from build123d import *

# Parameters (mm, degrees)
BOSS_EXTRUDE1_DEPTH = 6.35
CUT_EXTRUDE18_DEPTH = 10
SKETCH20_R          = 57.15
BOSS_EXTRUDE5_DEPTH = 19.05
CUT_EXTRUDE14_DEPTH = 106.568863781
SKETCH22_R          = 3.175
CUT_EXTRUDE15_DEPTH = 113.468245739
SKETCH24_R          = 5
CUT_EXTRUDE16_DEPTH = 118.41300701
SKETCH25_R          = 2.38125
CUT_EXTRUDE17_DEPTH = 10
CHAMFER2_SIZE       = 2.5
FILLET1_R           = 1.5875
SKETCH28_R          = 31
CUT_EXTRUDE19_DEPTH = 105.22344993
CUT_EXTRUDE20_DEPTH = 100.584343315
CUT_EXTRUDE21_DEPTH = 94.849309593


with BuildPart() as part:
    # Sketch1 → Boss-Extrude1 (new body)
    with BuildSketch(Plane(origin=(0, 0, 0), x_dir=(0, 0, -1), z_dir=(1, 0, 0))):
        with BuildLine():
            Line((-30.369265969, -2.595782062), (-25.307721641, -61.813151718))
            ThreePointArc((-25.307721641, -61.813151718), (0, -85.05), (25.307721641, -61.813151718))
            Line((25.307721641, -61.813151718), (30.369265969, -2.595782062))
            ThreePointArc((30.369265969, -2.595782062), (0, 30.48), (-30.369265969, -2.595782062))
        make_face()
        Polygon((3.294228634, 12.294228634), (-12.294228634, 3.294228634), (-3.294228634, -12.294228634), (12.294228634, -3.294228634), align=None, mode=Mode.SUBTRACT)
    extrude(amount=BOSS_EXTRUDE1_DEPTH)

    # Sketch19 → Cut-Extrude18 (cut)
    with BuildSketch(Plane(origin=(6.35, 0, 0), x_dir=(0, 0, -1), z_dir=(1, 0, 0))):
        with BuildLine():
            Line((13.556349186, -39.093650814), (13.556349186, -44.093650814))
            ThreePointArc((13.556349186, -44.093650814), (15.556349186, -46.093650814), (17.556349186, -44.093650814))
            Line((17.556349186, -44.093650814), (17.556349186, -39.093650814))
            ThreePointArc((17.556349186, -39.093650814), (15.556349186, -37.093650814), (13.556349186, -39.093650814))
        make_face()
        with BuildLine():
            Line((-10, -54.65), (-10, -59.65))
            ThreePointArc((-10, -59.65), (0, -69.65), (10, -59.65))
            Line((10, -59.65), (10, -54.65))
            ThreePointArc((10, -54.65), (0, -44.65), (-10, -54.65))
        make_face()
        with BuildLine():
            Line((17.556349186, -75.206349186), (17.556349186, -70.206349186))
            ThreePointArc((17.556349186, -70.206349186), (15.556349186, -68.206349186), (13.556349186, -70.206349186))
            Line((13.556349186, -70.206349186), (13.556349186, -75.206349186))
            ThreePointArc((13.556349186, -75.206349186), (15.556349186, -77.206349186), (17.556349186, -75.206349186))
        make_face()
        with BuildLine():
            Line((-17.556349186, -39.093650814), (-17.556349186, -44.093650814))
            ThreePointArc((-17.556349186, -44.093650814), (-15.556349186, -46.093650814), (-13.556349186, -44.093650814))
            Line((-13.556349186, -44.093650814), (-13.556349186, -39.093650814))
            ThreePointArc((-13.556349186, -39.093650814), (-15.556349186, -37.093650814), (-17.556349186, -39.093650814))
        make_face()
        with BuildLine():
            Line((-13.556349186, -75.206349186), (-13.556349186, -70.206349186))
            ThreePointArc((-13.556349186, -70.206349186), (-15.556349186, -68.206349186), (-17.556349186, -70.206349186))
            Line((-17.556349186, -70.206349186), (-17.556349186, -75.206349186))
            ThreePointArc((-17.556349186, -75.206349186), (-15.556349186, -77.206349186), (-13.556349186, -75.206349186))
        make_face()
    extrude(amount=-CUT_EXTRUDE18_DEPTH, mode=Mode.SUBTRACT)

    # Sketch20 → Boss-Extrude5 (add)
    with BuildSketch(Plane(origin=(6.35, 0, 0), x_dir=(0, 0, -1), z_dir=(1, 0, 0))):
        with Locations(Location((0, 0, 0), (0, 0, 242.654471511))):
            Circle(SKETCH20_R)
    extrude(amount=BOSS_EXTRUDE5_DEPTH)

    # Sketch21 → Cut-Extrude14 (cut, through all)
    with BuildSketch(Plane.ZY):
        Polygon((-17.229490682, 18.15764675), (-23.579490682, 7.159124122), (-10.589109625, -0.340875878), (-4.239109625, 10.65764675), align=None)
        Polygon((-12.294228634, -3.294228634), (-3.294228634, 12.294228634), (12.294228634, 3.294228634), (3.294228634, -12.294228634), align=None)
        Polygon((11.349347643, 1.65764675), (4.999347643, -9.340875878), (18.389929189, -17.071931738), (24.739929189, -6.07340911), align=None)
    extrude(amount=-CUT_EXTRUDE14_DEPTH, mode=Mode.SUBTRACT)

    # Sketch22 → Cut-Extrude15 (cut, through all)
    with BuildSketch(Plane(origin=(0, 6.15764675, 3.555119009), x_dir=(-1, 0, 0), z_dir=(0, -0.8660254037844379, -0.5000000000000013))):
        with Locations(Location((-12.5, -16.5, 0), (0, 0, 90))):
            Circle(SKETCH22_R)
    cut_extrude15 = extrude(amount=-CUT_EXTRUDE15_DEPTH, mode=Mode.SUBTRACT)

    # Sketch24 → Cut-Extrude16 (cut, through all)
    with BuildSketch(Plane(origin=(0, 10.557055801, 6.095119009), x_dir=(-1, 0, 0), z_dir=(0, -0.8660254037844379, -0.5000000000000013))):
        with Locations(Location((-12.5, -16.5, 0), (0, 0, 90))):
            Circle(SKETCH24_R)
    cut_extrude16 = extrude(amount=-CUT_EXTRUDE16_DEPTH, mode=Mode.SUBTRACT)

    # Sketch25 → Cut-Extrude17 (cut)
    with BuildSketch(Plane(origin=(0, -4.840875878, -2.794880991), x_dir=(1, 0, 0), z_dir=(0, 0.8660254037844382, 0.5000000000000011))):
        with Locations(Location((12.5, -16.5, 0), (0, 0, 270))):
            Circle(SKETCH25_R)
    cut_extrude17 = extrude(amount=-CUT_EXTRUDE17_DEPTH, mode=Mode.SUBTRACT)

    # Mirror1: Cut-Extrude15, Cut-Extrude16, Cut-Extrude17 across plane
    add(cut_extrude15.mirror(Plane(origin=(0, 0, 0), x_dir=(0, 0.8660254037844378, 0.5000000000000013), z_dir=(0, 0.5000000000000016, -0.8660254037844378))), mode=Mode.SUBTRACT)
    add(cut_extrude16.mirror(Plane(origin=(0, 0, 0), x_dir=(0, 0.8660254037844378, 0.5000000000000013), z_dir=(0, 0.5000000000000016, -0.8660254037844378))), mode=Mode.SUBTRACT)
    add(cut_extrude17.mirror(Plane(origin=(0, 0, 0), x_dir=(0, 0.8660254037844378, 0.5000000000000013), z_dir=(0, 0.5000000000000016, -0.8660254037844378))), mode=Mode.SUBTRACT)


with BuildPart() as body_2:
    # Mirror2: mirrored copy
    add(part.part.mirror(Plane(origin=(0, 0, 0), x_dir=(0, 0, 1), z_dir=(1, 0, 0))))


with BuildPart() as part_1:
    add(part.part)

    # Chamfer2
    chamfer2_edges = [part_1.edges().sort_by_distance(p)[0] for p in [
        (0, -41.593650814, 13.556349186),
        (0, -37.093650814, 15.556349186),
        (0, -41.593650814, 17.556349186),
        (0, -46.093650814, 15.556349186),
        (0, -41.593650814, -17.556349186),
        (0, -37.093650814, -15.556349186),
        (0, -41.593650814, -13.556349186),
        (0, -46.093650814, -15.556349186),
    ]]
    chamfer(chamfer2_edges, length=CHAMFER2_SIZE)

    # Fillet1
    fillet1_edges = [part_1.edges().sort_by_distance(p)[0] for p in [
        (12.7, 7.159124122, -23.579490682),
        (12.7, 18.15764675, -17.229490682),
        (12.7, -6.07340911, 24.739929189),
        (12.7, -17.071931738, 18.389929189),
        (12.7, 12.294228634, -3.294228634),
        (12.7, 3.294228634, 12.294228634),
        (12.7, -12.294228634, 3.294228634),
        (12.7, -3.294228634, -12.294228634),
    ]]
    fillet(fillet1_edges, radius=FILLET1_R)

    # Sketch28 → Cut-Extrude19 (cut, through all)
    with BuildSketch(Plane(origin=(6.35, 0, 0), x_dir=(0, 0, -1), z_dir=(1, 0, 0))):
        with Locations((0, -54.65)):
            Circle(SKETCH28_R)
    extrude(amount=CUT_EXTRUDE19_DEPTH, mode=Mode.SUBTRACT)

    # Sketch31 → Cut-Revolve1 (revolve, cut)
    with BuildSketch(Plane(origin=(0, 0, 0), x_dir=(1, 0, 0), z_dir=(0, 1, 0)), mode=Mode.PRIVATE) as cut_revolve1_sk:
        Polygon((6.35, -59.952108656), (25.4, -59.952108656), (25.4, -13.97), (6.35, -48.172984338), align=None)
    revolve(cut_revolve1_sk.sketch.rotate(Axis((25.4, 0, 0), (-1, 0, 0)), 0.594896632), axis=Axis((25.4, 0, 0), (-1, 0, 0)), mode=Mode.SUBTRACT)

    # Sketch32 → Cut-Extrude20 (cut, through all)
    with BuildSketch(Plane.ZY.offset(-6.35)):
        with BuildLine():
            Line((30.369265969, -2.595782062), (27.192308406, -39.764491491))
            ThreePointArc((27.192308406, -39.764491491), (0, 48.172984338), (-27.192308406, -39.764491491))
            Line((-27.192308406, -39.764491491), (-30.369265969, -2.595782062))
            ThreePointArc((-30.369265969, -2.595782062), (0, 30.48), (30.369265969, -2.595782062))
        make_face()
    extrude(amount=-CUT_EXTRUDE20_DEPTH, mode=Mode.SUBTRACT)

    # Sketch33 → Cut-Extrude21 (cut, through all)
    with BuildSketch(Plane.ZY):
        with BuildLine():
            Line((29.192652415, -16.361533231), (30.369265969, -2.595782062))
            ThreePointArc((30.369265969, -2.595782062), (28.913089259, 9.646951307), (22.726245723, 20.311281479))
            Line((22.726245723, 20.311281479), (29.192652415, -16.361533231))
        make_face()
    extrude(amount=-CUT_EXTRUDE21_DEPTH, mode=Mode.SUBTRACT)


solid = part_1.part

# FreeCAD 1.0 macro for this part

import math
import FreeCAD as App
import Part
import Sketcher
Q = App.Units.Quantity


def edges_at(feature, points):
    """Names of the edges that pass closest to the given points."""
    edges = feature.Shape.Edges
    near = lambda p: min(range(len(edges)), key=lambda i: edges[i].distToShape(Part.Vertex(*p))[0])
    return sorted({f"Edge{near(p) + 1}" for p in points})

doc = App.newDocument("Part")
body = doc.addObject("PartDesign::Body", "Body")

# Sketch on YZ plane
sketch1 = doc.addObject("Sketcher::SketchObject", "Sketch")
body.addObject(sketch1)
sketch1.AttachmentSupport = (doc.YZ_Plane, [""])
sketch1.MapMode = "FlatFace"
sketch1.addGeometry([
    Part.LineSegment(App.Vector(-3, 30, 0), App.Vector(-62, 25, 0)),  # 0
    Part.ArcOfCircle(Part.Circle(App.Vector(-60, 0, 0), App.Vector(0, 0, 1), 25), math.radians(95), math.radians(265)),  # 1
    Part.LineSegment(App.Vector(-62, -25, 0), App.Vector(-3, -30, 0)),  # 2
    Part.ArcOfCircle(Part.Circle(App.Vector(0, 0, 0), App.Vector(0, 0, 1), 30), math.radians(-95), math.radians(95)),  # 3
    Part.LineSegment(App.Vector(3, 12, 0), App.Vector(12, -3, 0)),  # 4
    Part.LineSegment(App.Vector(12, -3, 0), App.Vector(-3, -12, 0)),  # 5
    Part.LineSegment(App.Vector(-3, -12, 0), App.Vector(-12, 3, 0)),  # 6
    Part.LineSegment(App.Vector(-12, 3, 0), App.Vector(3, 12, 0)),  # 7
], False)
sketch1.addConstraint([
    Sketcher.Constraint("Tangent", 0, 2, 1, 1),
    Sketcher.Constraint("Tangent", 1, 2, 2, 1),
    Sketcher.Constraint("Tangent", 2, 2, 3, 1),
    Sketcher.Constraint("Tangent", 3, 2, 0, 1),
    Sketcher.Constraint("Coincident", 4, 2, 5, 1),
    Sketcher.Constraint("Coincident", 5, 2, 6, 1),
    Sketcher.Constraint("Coincident", 6, 2, 7, 1),
    Sketcher.Constraint("Coincident", 7, 2, 4, 1),
    Sketcher.Constraint("Coincident", 3, 3, -1, 1),
    Sketcher.Constraint("Symmetric", 4, 2, 6, 2, -1, 1),
    Sketcher.Constraint("Symmetric", 5, 2, 7, 2, -1, 1),
    Sketcher.Constraint("PointOnObject", 1, 3, -1),
    Sketcher.Constraint("Perpendicular", 4, 5),
    Sketcher.Constraint("Equal", 4, 5),
    Sketcher.Constraint("Radius", 1, 25.4),
    Sketcher.Constraint("Angle", 4, Q("-60 deg")),
    Sketcher.Constraint("Radius", 3, 30.48),
    Sketcher.Constraint("Distance", 4, 18.0),
    Sketcher.Constraint("DistanceX", 1, 3, -1, 1, 59.65),
])
pad1 = doc.addObject("PartDesign::Pad", "Pad")
body.addObject(pad1)
pad1.Profile = sketch1
pad1.Length = 6.35

# Sketch on YZ plane
sketch2 = doc.addObject("Sketcher::SketchObject", "Sketch001")
body.addObject(sketch2)
sketch2.AttachmentSupport = (doc.YZ_Plane, [""])
sketch2.MapMode = "FlatFace"
sketch2.AttachmentOffset = App.Placement(App.Vector(0, 0, 6.35), App.Rotation())
sketch2.addGeometry([
    Part.LineSegment(App.Vector(-39.1, -13.6, 0), App.Vector(-44.1, -13.6, 0)),  # 0
    Part.ArcOfCircle(Part.Circle(App.Vector(-44.1, -15.6, 0), App.Vector(0, 0, 1), 2), math.radians(90), math.radians(270)),  # 1
    Part.LineSegment(App.Vector(-44.1, -17.6, 0), App.Vector(-39.1, -17.6, 0)),  # 2
    Part.ArcOfCircle(Part.Circle(App.Vector(-39.1, -15.6, 0), App.Vector(0, 0, 1), 2), math.radians(-90), math.radians(90)),  # 3
    Part.LineSegment(App.Vector(-54.6, 10, 0), App.Vector(-59.6, 10, 0)),  # 4
    Part.ArcOfCircle(Part.Circle(App.Vector(-59.6, 0, 0), App.Vector(0, 0, 1), 10), math.radians(90), math.radians(270)),  # 5
    Part.LineSegment(App.Vector(-59.6, -10, 0), App.Vector(-54.6, -10, 0)),  # 6
    Part.ArcOfCircle(Part.Circle(App.Vector(-54.6, 0, 0), App.Vector(0, 0, 1), 10), math.radians(-90), math.radians(90)),  # 7
    Part.LineSegment(App.Vector(-75.2, -17.6, 0), App.Vector(-70.2, -17.6, 0)),  # 8
    Part.ArcOfCircle(Part.Circle(App.Vector(-70.2, -15.6, 0), App.Vector(0, 0, 1), 2), math.radians(-90), math.radians(90)),  # 9
    Part.LineSegment(App.Vector(-70.2, -13.6, 0), App.Vector(-75.2, -13.6, 0)),  # 10
    Part.ArcOfCircle(Part.Circle(App.Vector(-75.2, -15.6, 0), App.Vector(0, 0, 1), 2), math.radians(90), math.radians(270)),  # 11
    Part.LineSegment(App.Vector(-39.1, 17.6, 0), App.Vector(-44.1, 17.6, 0)),  # 12
    Part.ArcOfCircle(Part.Circle(App.Vector(-44.1, 15.6, 0), App.Vector(0, 0, 1), 2), math.radians(90), math.radians(270)),  # 13
    Part.LineSegment(App.Vector(-44.1, 13.6, 0), App.Vector(-39.1, 13.6, 0)),  # 14
    Part.ArcOfCircle(Part.Circle(App.Vector(-39.1, 15.6, 0), App.Vector(0, 0, 1), 2), math.radians(-90), math.radians(90)),  # 15
    Part.LineSegment(App.Vector(-75.2, 13.6, 0), App.Vector(-70.2, 13.6, 0)),  # 16
    Part.ArcOfCircle(Part.Circle(App.Vector(-70.2, 15.6, 0), App.Vector(0, 0, 1), 2), math.radians(-90), math.radians(90)),  # 17
    Part.LineSegment(App.Vector(-70.2, 17.6, 0), App.Vector(-75.2, 17.6, 0)),  # 18
    Part.ArcOfCircle(Part.Circle(App.Vector(-75.2, 15.6, 0), App.Vector(0, 0, 1), 2), math.radians(90), math.radians(270)),  # 19
], False)
sketch2.addConstraint([
    Sketcher.Constraint("Tangent", 0, 2, 1, 1),
    Sketcher.Constraint("Tangent", 1, 2, 2, 1),
    Sketcher.Constraint("Tangent", 2, 2, 3, 1),
    Sketcher.Constraint("Tangent", 3, 2, 0, 1),
    Sketcher.Constraint("Tangent", 4, 2, 5, 1),
    Sketcher.Constraint("Tangent", 5, 2, 6, 1),
    Sketcher.Constraint("Tangent", 6, 2, 7, 1),
    Sketcher.Constraint("Tangent", 7, 2, 4, 1),
    Sketcher.Constraint("Tangent", 8, 2, 9, 1),
    Sketcher.Constraint("Tangent", 9, 2, 10, 1),
    Sketcher.Constraint("Tangent", 10, 2, 11, 1),
    Sketcher.Constraint("Tangent", 11, 2, 8, 1),
    Sketcher.Constraint("Tangent", 12, 2, 13, 1),
    Sketcher.Constraint("Tangent", 13, 2, 14, 1),
    Sketcher.Constraint("Tangent", 14, 2, 15, 1),
    Sketcher.Constraint("Tangent", 15, 2, 12, 1),
    Sketcher.Constraint("Tangent", 16, 2, 17, 1),
    Sketcher.Constraint("Tangent", 17, 2, 18, 1),
    Sketcher.Constraint("Tangent", 18, 2, 19, 1),
    Sketcher.Constraint("Tangent", 19, 2, 16, 1),
    Sketcher.Constraint("Horizontal", 0),
    Sketcher.Constraint("Horizontal", 2),
    Sketcher.Constraint("Horizontal", 4),
    Sketcher.Constraint("Horizontal", 6),
    Sketcher.Constraint("Horizontal", 8),
    Sketcher.Constraint("Horizontal", 10),
    Sketcher.Constraint("Horizontal", 12),
    Sketcher.Constraint("Horizontal", 14),
    Sketcher.Constraint("Horizontal", 16),
    Sketcher.Constraint("Horizontal", 18),
    Sketcher.Constraint("Equal", 3, 9),
    Sketcher.Constraint("Equal", 11, 13),
    Sketcher.Constraint("Equal", 15, 17),
    Sketcher.Constraint("Symmetric", 1, 3, 13, 3, -1),
    Sketcher.Constraint("Symmetric", 9, 3, 17, 3, -1),
    Sketcher.Constraint("PointOnObject", 5, 3, -1),
    Sketcher.Constraint("Horizontal", 3, 3, 9, 3),
    Sketcher.Constraint("Vertical", 3, 3, 15, 3),
    Sketcher.Constraint("Vertical", 11, 3, 19, 3),
    Sketcher.Constraint("Equal", 2, 4),
    Sketcher.Constraint("Equal", 6, 8),
    Sketcher.Constraint("Radius", 1, 2.0),
    Sketcher.Constraint("Radius", 5, 10.0),
    Sketcher.Constraint("DistanceX", 0, 2, 0, 1, 5.0),
    Sketcher.Constraint("DistanceX", 5, 3, -1, 1, 59.65),
    Sketcher.Constraint("DistanceX", 9, 3, 1, 3, 26.112698),
    Sketcher.Constraint("DistanceY", 1, 3, 13, 3, 31.112698),
    Sketcher.Constraint("DistanceX", 1, 3, -1, 1, 44.093651),
])
pocket1 = doc.addObject("PartDesign::Pocket", "Pocket")
body.addObject(pocket1)
pocket1.Profile = sketch2
pocket1.Length = 10

# Sketch on YZ plane
sketch3 = doc.addObject("Sketcher::SketchObject", "Sketch002")
body.addObject(sketch3)
sketch3.AttachmentSupport = (doc.YZ_Plane, [""])
sketch3.MapMode = "FlatFace"
sketch3.AttachmentOffset = App.Placement(App.Vector(0, 0, 6.35), App.Rotation())
sketch3.addGeometry(Part.Circle(App.Vector(0, 0, 0), App.Vector(0, 0, 1), 57), False)
sketch3.addConstraint([
    Sketcher.Constraint("Coincident", 0, 3, -1, 1),
    Sketcher.Constraint("Diameter", 0, 114.3),
])
pad2 = doc.addObject("PartDesign::Pad", "Pad001")
body.addObject(pad2)
pad2.Profile = sketch3
pad2.Length = 19.05

# Sketch on YZ plane
sketch4 = doc.addObject("Sketcher::SketchObject", "Sketch003")
body.addObject(sketch4)
sketch4.AttachmentSupport = (doc.YZ_Plane, [""])
sketch4.MapMode = "FlatFace"
sketch4.addGeometry([
    Part.LineSegment(App.Vector(18.2, -17.2, 0), App.Vector(7.2, -23.6, 0)),  # 0
    Part.LineSegment(App.Vector(7.2, -23.6, 0), App.Vector(-0.3, -10.6, 0)),  # 1
    Part.LineSegment(App.Vector(-0.3, -10.6, 0), App.Vector(-3.3, -12.3, 0)),  # 2
    Part.LineSegment(App.Vector(-3.3, -12.3, 0), App.Vector(-12.3, 3.3, 0)),  # 3
    Part.LineSegment(App.Vector(-12.3, 3.3, 0), App.Vector(-9.3, 5, 0)),  # 4
    Part.LineSegment(App.Vector(-9.3, 5, 0), App.Vector(-17.1, 18.4, 0)),  # 5
    Part.LineSegment(App.Vector(-17.1, 18.4, 0), App.Vector(-6.1, 24.7, 0)),  # 6
    Part.LineSegment(App.Vector(-6.1, 24.7, 0), App.Vector(1.7, 11.3, 0)),  # 7
    Part.LineSegment(App.Vector(1.7, 11.3, 0), App.Vector(3.3, 12.3, 0)),  # 8
    Part.LineSegment(App.Vector(3.3, 12.3, 0), App.Vector(12.3, -3.3, 0)),  # 9
    Part.LineSegment(App.Vector(12.3, -3.3, 0), App.Vector(10.7, -4.2, 0)),  # 10
    Part.LineSegment(App.Vector(10.7, -4.2, 0), App.Vector(18.2, -17.2, 0)),  # 11
], False)
sketch4.addConstraint([
    Sketcher.Constraint("Coincident", 0, 2, 1, 1),
    Sketcher.Constraint("Coincident", 1, 2, 2, 1),
    Sketcher.Constraint("Coincident", 2, 2, 3, 1),
    Sketcher.Constraint("Coincident", 3, 2, 4, 1),
    Sketcher.Constraint("Coincident", 4, 2, 5, 1),
    Sketcher.Constraint("Coincident", 5, 2, 6, 1),
    Sketcher.Constraint("Coincident", 6, 2, 7, 1),
    Sketcher.Constraint("Coincident", 7, 2, 8, 1),
    Sketcher.Constraint("Coincident", 8, 2, 9, 1),
    Sketcher.Constraint("Coincident", 9, 2, 10, 1),
    Sketcher.Constraint("Coincident", 10, 2, 11, 1),
    Sketcher.Constraint("Coincident", 11, 2, 0, 1),
    Sketcher.Constraint("Symmetric", 2, 2, 8, 2, -1, 1),
    Sketcher.Constraint("Symmetric", 3, 2, 9, 2, -1, 1),
    Sketcher.Constraint("Perpendicular", 0, 1),
    Sketcher.Constraint("Perpendicular", 1, 2),
    Sketcher.Constraint("Perpendicular", 2, 3),
    Sketcher.Constraint("Perpendicular", 3, 4),
    Sketcher.Constraint("Perpendicular", 4, 5),
    Sketcher.Constraint("Perpendicular", 5, 6),
    Sketcher.Constraint("Perpendicular", 6, 7),
    Sketcher.Constraint("Perpendicular", 7, 8),
    Sketcher.Constraint("Perpendicular", 9, 10),
    Sketcher.Constraint("Perpendicular", 10, 11),
    Sketcher.Constraint("Equal", 2, 4),
    Sketcher.Constraint("Equal", 0, 6),
    Sketcher.Constraint("Equal", 5, 7),
    Sketcher.Constraint("Angle", 0, Q("-150 deg")),
    Sketcher.Constraint("Distance", 1, 15.0),
    Sketcher.Constraint("Distance", 3, 18.0),
    Sketcher.Constraint("DistanceY", 3, 2, 8, 2, 9.0),
    Sketcher.Constraint("Distance", 0, 12.7),
    Sketcher.Constraint("DistanceY", 3, 2, 5, 2, 15.095701),
    Sketcher.Constraint("Distance", 2, 3.410238),
])
pocket2 = doc.addObject("PartDesign::Pocket", "Pocket001")
body.addObject(pocket2)
pocket2.Profile = sketch4
pocket2.Type = "ThroughAll"
pocket2.Reversed = True

# Sketch on an angled plane
sketch5 = doc.addObject("Sketcher::SketchObject", "Sketch004")
body.addObject(sketch5)
sketch5.Placement = App.Placement(App.Vector(0, 6.157647, 3.555119), App.Rotation(App.Vector(-1, 0, 0), App.Vector(0, 0.5, -0.866025404), App.Vector(0, -0.866025404, -0.5), "ZXY"))
sketch5.addGeometry(Part.Circle(App.Vector(-12.5, -16.5, 0), App.Vector(0, 0, 1), 3.2), False)
sketch5.addConstraint([
    Sketcher.Constraint("Diameter", 0, 6.35),
    Sketcher.Constraint("DistanceX", 0, 3, -1, 1, 12.5),
    Sketcher.Constraint("DistanceY", 0, 3, -1, 1, 16.5),
])
pocket3 = doc.addObject("PartDesign::Pocket", "Pocket002")
body.addObject(pocket3)
pocket3.Profile = sketch5
pocket3.Type = "ThroughAll"

# Sketch on an angled plane
sketch6 = doc.addObject("Sketcher::SketchObject", "Sketch005")
body.addObject(sketch6)
sketch6.Placement = App.Placement(App.Vector(0, 10.557056, 6.095119), App.Rotation(App.Vector(-1, 0, 0), App.Vector(0, 0.5, -0.866025404), App.Vector(0, -0.866025404, -0.5), "ZXY"))
sketch6.addGeometry(Part.Circle(App.Vector(-12, -17, 0), App.Vector(0, 0, 1), 5), False)
sketch6.addConstraint([
    Sketcher.Constraint("Diameter", 0, 10.0),
    Sketcher.Constraint("DistanceX", 0, 3, -1, 1, 12.5),
    Sketcher.Constraint("DistanceY", 0, 3, -1, 1, 16.5),
])
pocket4 = doc.addObject("PartDesign::Pocket", "Pocket003")
body.addObject(pocket4)
pocket4.Profile = sketch6
pocket4.Type = "ThroughAll"

# Sketch on an angled plane
sketch7 = doc.addObject("Sketcher::SketchObject", "Sketch006")
body.addObject(sketch7)
sketch7.Placement = App.Placement(App.Vector(0, -4.840876, -2.794881), App.Rotation(App.Vector(1, 0, 0), App.Vector(0, 0.5, -0.866025404), App.Vector(0, 0.866025404, 0.5), "ZXY"))
sketch7.addGeometry(Part.Circle(App.Vector(12.5, -16.5, 0), App.Vector(0, 0, 1), 2.4), False)
sketch7.addConstraint([
    Sketcher.Constraint("Diameter", 0, 4.7625),
    Sketcher.Constraint("DistanceX", -1, 1, 0, 3, 12.5),
    Sketcher.Constraint("DistanceY", 0, 3, -1, 1, 16.5),
])
pocket5 = doc.addObject("PartDesign::Pocket", "Pocket004")
body.addObject(pocket5)
pocket5.Profile = sketch7
pocket5.Length = 10
doc.recompute()

datumplane = doc.addObject("PartDesign::Plane", "DatumPlane")
body.addObject(datumplane)
datumplane.Placement = App.Placement(App.Vector(0, 0, 0), App.Rotation(App.Vector(0, -0.866025404, -0.5), App.Vector(-1, 0, 0), App.Vector(0, 0.5, -0.866025404), "ZXY"))
mirrored = doc.addObject("PartDesign::Mirrored", "Mirrored")
body.addObject(mirrored)
mirrored.Originals = [pocket3, pocket4, pocket5]
mirrored.MirrorPlane = (datumplane, [""])
body.Tip = mirrored
body2 = doc.addObject("PartDesign::Body", "Body001")
doc.recompute()

mirroring = doc.addObject("Part::Mirroring", "Mirroring")
mirroring.Source = body
mirroring.Base = App.Vector(0, 0, 0)
mirroring.Normal = App.Vector(1, 0, 0)
body2.BaseFeature = mirroring
doc.recompute()

chamfer = doc.addObject("PartDesign::Chamfer", "Chamfer")
body.addObject(chamfer)
chamfer.Base = (mirrored, edges_at(mirrored, [
    (0, -41.594, 13.556),
    (0, -37.094, 15.556),
    (0, -41.594, 17.556),
    (0, -46.094, 15.556),
    (0, -41.594, -17.556),
    (0, -37.094, -15.556),
    (0, -41.594, -13.556),
    (0, -46.094, -15.556),
]))
chamfer.Size = 2.5
doc.recompute()

fillet = doc.addObject("PartDesign::Fillet", "Fillet")
body.addObject(fillet)
fillet.Base = (chamfer, edges_at(chamfer, [
    (12.7, 7.159, -23.579),
    (12.7, 18.158, -17.229),
    (12.7, -6.073, 24.74),
    (12.7, -17.072, 18.39),
    (12.7, 12.294, -3.294),
    (12.7, 3.294, 12.294),
    (12.7, -12.294, 3.294),
    (12.7, -3.294, -12.294),
]))
fillet.Radius = 1.5875

# Sketch on YZ plane
sketch8 = doc.addObject("Sketcher::SketchObject", "Sketch007")
body.addObject(sketch8)
sketch8.AttachmentSupport = (doc.YZ_Plane, [""])
sketch8.MapMode = "FlatFace"
sketch8.AttachmentOffset = App.Placement(App.Vector(0, 0, 6.35), App.Rotation())
sketch8.addGeometry(Part.Circle(App.Vector(-55, 0, 0), App.Vector(0, 0, 1), 31), False)
sketch8.addConstraint([
    Sketcher.Constraint("PointOnObject", 0, 3, -1),
    Sketcher.Constraint("Diameter", 0, 62.0),
    Sketcher.Constraint("DistanceX", 0, 3, -1, 1, 54.65),
])
pocket6 = doc.addObject("PartDesign::Pocket", "Pocket005")
body.addObject(pocket6)
pocket6.Profile = sketch8
pocket6.Type = "ThroughAll"
pocket6.Reversed = True

# Sketch on XZ plane
sketch9 = doc.addObject("Sketcher::SketchObject", "Sketch008")
body.addObject(sketch9)
sketch9.AttachmentSupport = (doc.XZ_Plane, [""])
sketch9.MapMode = "FlatFace"
sketch9.addGeometry([
    Part.LineSegment(App.Vector(6, 60, 0), App.Vector(25, 60, 0)),
    Part.LineSegment(App.Vector(25, 60, 0), App.Vector(25, 14, 0)),
    Part.LineSegment(App.Vector(25, 14, 0), App.Vector(6, 48, 0)),
    Part.LineSegment(App.Vector(6, 48, 0), App.Vector(6, 60, 0)),
], False)
sketch9.addConstraint([
    Sketcher.Constraint("Coincident", 0, 2, 1, 1),
    Sketcher.Constraint("Coincident", 1, 2, 2, 1),
    Sketcher.Constraint("Coincident", 2, 2, 3, 1),
    Sketcher.Constraint("Coincident", 3, 2, 0, 1),
    Sketcher.Constraint("Horizontal", 0),
    Sketcher.Constraint("Vertical", 1),
    Sketcher.Constraint("Vertical", 3),
    Sketcher.Constraint("DistanceX", 0, 1, 0, 2, 19.05),
    Sketcher.Constraint("DistanceX", -1, 1, 0, 2, 25.4),
    Sketcher.Constraint("DistanceY", -1, 1, 1, 2, 13.97),
    Sketcher.Constraint("DistanceY", 1, 2, 1, 1, 45.982109),
    Sketcher.Constraint("Distance", 2, 39.150308),
])
groove = doc.addObject("PartDesign::Groove", "Groove")
body.addObject(groove)
groove.Profile = sketch9
groove.ReferenceAxis = (sketch9, ["H_Axis"])
groove.Angle = 360

# Sketch on YZ plane
sketch10 = doc.addObject("Sketcher::SketchObject", "Sketch009")
body.addObject(sketch10)
sketch10.AttachmentSupport = (doc.YZ_Plane, [""])
sketch10.MapMode = "FlatFace"
sketch10.AttachmentOffset = App.Placement(App.Vector(0, 0, 6.35), App.Rotation())
sketch10.addGeometry([
    Part.LineSegment(App.Vector(-3, 30, 0), App.Vector(-40, 27, 0)),
    Part.ArcOfCircle(Part.Circle(App.Vector(0, 0, 0), App.Vector(0, 0, 1), 48), math.radians(-146), math.radians(146)),
    Part.LineSegment(App.Vector(-40, -27, 0), App.Vector(-3, -30, 0)),
    Part.ArcOfCircle(Part.Circle(App.Vector(0, 0, 0), App.Vector(0, 0, 1), 30), math.radians(-95), math.radians(95)),
], False)
sketch10.addConstraint([
    Sketcher.Constraint("Coincident", 0, 2, 1, 2),
    Sketcher.Constraint("Coincident", 1, 1, 2, 1),
    Sketcher.Constraint("Tangent", 2, 2, 3, 1),
    Sketcher.Constraint("Tangent", 3, 2, 0, 1),
    Sketcher.Constraint("Coincident", 1, 3, -1, 1),
    Sketcher.Constraint("Coincident", 3, 3, -1, 1),
    Sketcher.Constraint("Vertical", 0, 2, 1, 1),
    Sketcher.Constraint("Radius", 3, 30.48),
    Sketcher.Constraint("Radius", 1, 48.172984),
    Sketcher.Constraint("DistanceX", 0, 2, -1, 1, 39.764491),
])
pocket7 = doc.addObject("PartDesign::Pocket", "Pocket006")
body.addObject(pocket7)
pocket7.Profile = sketch10
pocket7.Type = "ThroughAll"
pocket7.Reversed = True

# Sketch on YZ plane
sketch11 = doc.addObject("Sketcher::SketchObject", "Sketch010")
body.addObject(sketch11)
sketch11.AttachmentSupport = (doc.YZ_Plane, [""])
sketch11.MapMode = "FlatFace"
sketch11.addGeometry([
    Part.LineSegment(App.Vector(-16, 29, 0), App.Vector(-3, 30, 0)),
    Part.ArcOfCircle(Part.Circle(App.Vector(0, 0, 0), App.Vector(0, 0, 1), 30), math.radians(48), math.radians(95)),
    Part.LineSegment(App.Vector(20, 23, 0), App.Vector(-16, 29, 0)),
], False)
sketch11.addConstraint([
    Sketcher.Constraint("Tangent", 0, 2, 1, 2),
    Sketcher.Constraint("Coincident", 1, 1, 2, 1),
    Sketcher.Constraint("Coincident", 2, 2, 0, 1),
    Sketcher.Constraint("Coincident", 1, 3, -1, 1),
    Sketcher.Constraint("Angle", 2, Q("170 deg")),
    Sketcher.Constraint("Radius", 1, 30.48),
    Sketcher.Constraint("Distance", 2, 37.238552),
    Sketcher.Constraint("DistanceX", -1, 1, 1, 1, 20.311281),
])
pocket8 = doc.addObject("PartDesign::Pocket", "Pocket007")
body.addObject(pocket8)
pocket8.Profile = sketch11
pocket8.Type = "ThroughAll"
pocket8.Reversed = True
body2.Visibility = False
mirroring.Visibility = False

doc.recompute()
